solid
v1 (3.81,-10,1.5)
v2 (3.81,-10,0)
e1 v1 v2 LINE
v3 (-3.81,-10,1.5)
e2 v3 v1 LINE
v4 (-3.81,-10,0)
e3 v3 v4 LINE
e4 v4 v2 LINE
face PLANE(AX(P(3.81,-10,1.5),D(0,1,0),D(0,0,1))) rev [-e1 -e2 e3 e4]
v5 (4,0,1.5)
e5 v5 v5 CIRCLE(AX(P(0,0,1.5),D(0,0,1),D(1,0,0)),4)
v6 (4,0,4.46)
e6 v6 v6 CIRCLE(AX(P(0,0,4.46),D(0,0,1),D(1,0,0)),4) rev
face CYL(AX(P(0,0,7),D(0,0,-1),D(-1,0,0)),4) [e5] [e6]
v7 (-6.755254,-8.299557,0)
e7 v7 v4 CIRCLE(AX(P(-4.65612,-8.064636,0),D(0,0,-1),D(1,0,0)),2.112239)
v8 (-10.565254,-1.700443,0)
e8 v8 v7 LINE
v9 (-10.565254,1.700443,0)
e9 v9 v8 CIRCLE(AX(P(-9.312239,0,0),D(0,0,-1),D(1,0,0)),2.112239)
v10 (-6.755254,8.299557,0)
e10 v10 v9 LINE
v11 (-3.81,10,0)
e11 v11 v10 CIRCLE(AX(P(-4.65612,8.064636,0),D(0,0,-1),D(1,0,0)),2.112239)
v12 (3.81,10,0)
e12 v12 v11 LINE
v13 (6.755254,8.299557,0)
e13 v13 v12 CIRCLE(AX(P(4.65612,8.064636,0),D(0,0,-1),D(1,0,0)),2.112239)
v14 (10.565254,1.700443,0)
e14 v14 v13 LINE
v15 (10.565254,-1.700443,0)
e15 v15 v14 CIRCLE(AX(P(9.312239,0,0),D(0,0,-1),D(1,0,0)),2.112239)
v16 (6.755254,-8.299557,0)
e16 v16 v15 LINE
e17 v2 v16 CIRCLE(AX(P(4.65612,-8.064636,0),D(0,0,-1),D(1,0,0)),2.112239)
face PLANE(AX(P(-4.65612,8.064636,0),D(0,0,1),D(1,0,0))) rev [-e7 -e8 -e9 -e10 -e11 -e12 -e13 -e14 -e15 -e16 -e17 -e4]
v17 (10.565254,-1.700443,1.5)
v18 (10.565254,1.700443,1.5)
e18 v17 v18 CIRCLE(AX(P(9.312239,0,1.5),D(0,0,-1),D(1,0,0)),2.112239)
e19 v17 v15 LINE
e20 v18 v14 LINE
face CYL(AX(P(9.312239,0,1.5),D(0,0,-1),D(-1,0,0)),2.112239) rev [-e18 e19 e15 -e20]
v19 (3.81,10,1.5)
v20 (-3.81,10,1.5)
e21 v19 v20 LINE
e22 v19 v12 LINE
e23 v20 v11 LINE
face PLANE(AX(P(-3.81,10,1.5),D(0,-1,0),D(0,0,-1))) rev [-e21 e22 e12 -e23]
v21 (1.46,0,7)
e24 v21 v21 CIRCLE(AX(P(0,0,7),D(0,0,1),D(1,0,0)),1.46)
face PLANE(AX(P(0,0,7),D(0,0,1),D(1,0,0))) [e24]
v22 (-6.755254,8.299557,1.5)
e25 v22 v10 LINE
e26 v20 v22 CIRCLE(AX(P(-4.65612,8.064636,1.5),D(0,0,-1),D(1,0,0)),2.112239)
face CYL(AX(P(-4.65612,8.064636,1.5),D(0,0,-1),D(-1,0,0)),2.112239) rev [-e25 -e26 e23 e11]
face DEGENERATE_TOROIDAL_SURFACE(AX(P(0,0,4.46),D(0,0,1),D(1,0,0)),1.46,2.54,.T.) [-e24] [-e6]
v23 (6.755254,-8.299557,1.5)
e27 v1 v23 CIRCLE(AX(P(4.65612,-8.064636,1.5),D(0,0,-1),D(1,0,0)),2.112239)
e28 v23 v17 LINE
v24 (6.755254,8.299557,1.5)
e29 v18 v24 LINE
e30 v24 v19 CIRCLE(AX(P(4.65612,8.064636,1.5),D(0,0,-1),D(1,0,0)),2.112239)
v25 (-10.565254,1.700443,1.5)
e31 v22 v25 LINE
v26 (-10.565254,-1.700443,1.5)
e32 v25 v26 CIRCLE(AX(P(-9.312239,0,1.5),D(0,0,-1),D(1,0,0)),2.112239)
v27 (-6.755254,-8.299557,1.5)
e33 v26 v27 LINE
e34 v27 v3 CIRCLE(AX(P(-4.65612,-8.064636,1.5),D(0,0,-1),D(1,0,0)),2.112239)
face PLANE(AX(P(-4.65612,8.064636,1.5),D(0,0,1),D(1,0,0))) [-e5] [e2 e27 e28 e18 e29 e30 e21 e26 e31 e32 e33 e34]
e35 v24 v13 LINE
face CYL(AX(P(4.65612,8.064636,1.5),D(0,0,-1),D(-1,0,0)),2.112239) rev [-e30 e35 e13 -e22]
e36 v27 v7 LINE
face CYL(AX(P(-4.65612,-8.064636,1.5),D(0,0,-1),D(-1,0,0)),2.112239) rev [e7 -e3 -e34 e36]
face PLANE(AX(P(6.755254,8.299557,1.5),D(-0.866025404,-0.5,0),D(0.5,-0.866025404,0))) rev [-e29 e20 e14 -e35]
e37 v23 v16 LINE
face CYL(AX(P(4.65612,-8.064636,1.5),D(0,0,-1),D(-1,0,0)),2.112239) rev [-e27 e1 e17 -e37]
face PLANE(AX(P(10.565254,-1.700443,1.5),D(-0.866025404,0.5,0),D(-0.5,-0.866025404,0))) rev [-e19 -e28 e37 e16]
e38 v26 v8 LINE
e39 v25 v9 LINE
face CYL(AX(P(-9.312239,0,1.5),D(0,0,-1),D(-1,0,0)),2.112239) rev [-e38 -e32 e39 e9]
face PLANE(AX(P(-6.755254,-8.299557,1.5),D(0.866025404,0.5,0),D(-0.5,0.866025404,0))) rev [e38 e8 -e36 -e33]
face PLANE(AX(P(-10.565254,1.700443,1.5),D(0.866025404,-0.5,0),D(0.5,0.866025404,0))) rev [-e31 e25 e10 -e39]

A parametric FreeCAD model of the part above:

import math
import FreeCAD as App
import Part
import Sketcher
Q = App.Units.Quantity


def edges_at(feature, points):
    """Names of the edges that pass closest to the given points."""
    edges = feature.Shape.Edges
    near = lambda p: min(range(len(edges)), key=lambda i: edges[i].distToShape(Part.Vertex(*p))[0])
    return sorted({f"Edge{near(p) + 1}" for p in points})

doc = App.newDocument("Part")
body = doc.addObject("PartDesign::Body", "Body")

sketch1 = doc.addObject("Sketcher::SketchObject", "Sketch")
body.addObject(sketch1)
sketch1.AttachmentSupport = (doc.XY_Plane, [""])
sketch1.MapMode = "FlatFace"
sketch1.addGeometry([
    Part.LineSegment(App.Vector(3.8, 10, 0), App.Vector(-3.8, 10, 0)),
    Part.ArcOfCircle(Part.Circle(App.Vector(-4.7, 8.1, 0), App.Vector(0, 0, 1), 2.1), math.radians(174), math.radians(426)),
    Part.LineSegment(App.Vector(-6.8, 8.3, 0), App.Vector(-10.6, 1.7, 0)),
    Part.ArcOfCircle(Part.Circle(App.Vector(-9.3, 0, 0), App.Vector(0, 0, 1), 2.1), math.radians(-126), math.radians(126)),
    Part.LineSegment(App.Vector(-10.6, -1.7, 0), App.Vector(-6.8, -8.3, 0)),
    Part.ArcOfCircle(Part.Circle(App.Vector(-4.7, -8.1, 0), App.Vector(0, 0, 1), 2.1), math.radians(-66), math.radians(186)),
    Part.LineSegment(App.Vector(-3.8, -10, 0), App.Vector(3.8, -10, 0)),
    Part.ArcOfCircle(Part.Circle(App.Vector(4.7, -8.1, 0), App.Vector(0, 0, 1), 2.1), math.radians(-6), math.radians(246)),
    Part.LineSegment(App.Vector(6.8, -8.3, 0), App.Vector(10.6, -1.7, 0)),
    Part.ArcOfCircle(Part.Circle(App.Vector(9.3, 0, 0), App.Vector(0, 0, 1), 2.1), math.radians(54), math.radians(306)),
    Part.LineSegment(App.Vector(10.6, 1.7, 0), App.Vector(6.8, 8.3, 0)),
    Part.ArcOfCircle(Part.Circle(App.Vector(4.7, 8.1, 0), App.Vector(0, 0, 1), 2.1), math.radians(114), math.radians(366)),
], False)
sketch1.addConstraint([
    Sketcher.Constraint("Coincident", 0, 2, 1, 2),
    Sketcher.Constraint("Coincident", 1, 1, 2, 1),
    Sketcher.Constraint("Coincident", 2, 2, 3, 2),
    Sketcher.Constraint("Coincident", 3, 1, 4, 1),
    Sketcher.Constraint("Coincident", 4, 2, 5, 2),
    Sketcher.Constraint("Coincident", 5, 1, 6, 1),
    Sketcher.Constraint("Coincident", 6, 2, 7, 2),
    Sketcher.Constraint("Coincident", 7, 1, 8, 1),
    Sketcher.Constraint("Coincident", 8, 2, 9, 2),
    Sketcher.Constraint("Coincident", 9, 1, 10, 1),
    Sketcher.Constraint("Coincident", 10, 2, 11, 2),
    Sketcher.Constraint("Coincident", 11, 1, 0, 1),
    Sketcher.Constraint("Horizontal", 0),
    Sketcher.Constraint("Horizontal", 6),
    Sketcher.Constraint("Equal", 1, 3),
    Sketcher.Constraint("Equal", 3, 5),
    Sketcher.Constraint("Equal", 5, 7),
    Sketcher.Constraint("Equal", 7, 9),
    Sketcher.Constraint("Equal", 9, 11),
    Sketcher.Constraint("Symmetric", 1, 3, 7, 3, -1, 1),
    Sketcher.Constraint("Symmetric", 3, 3, 9, 3, -1, 1),
    Sketcher.Constraint("Symmetric", 5, 3, 11, 3, -1, 1),
    Sketcher.Constraint("Symmetric", 5, 3, 7, 3, -2),
    Sketcher.Constraint("Symmetric", 3, 1, 8, 2, -2),
    Sketcher.Constraint("Parallel", 2, 8),
    Sketcher.Constraint("Parallel", 4, 10),
    Sketcher.Constraint("Horizontal", 4, 2, 7, 1),
    Sketcher.Constraint("Horizontal", 2, 2, 9, 1),
    Sketcher.Constraint("Vertical", 2, 2, 3, 1),
    Sketcher.Constraint("Vertical", 0, 2, 5, 1),
    Sketcher.Constraint("Angle", 2, Q("-120 deg")),
    Sketcher.Constraint("DistanceY", -1, 1, 0, 2, Q("10 mm")),
    Sketcher.Constraint("DistanceY", 3, 1, 1, 1, Q("10 mm")),
    Sketcher.Constraint("DistanceX", 0, 2, 0, 1, Q("7.62 mm")),
    Sketcher.Constraint("Distance", 2, Q("7.62 mm")),
    Sketcher.Constraint("Radius", 1, Q("2.112239 mm")),
    Sketcher.Constraint("DistanceX", 1, 3, -1, 1, Q("4.65612 mm")),
])
pad1 = doc.addObject("PartDesign::Pad", "Pad")
body.addObject(pad1)
pad1.Profile = sketch1
pad1.Length = 1.5

sketch2 = doc.addObject("Sketcher::SketchObject", "Sketch001")
body.addObject(sketch2)
sketch2.AttachmentSupport = (doc.XY_Plane, [""])
sketch2.MapMode = "FlatFace"
sketch2.AttachmentOffset = App.Placement(App.Vector(0, 0, 1.5), App.Rotation())
sketch2.addGeometry(Part.Circle(App.Vector(0, 0, 0), App.Vector(0, 0, 1), 4), False)
sketch2.addConstraint([
    Sketcher.Constraint("Coincident", 0, 3, -1, 1),
    Sketcher.Constraint("Diameter", 0, Q("8 mm")),
])
pad2 = doc.addObject("PartDesign::Pad", "Pad001")
body.addObject(pad2)
pad2.Profile = sketch2
pad2.Length = 5.5
doc.recompute()

fillet = doc.addObject("PartDesign::Fillet", "Fillet")
body.addObject(fillet)
fillet.Base = (pad2, edges_at(pad2, [(-4, 0, 7)]))
fillet.Radius = 2.54

doc.recompute()
